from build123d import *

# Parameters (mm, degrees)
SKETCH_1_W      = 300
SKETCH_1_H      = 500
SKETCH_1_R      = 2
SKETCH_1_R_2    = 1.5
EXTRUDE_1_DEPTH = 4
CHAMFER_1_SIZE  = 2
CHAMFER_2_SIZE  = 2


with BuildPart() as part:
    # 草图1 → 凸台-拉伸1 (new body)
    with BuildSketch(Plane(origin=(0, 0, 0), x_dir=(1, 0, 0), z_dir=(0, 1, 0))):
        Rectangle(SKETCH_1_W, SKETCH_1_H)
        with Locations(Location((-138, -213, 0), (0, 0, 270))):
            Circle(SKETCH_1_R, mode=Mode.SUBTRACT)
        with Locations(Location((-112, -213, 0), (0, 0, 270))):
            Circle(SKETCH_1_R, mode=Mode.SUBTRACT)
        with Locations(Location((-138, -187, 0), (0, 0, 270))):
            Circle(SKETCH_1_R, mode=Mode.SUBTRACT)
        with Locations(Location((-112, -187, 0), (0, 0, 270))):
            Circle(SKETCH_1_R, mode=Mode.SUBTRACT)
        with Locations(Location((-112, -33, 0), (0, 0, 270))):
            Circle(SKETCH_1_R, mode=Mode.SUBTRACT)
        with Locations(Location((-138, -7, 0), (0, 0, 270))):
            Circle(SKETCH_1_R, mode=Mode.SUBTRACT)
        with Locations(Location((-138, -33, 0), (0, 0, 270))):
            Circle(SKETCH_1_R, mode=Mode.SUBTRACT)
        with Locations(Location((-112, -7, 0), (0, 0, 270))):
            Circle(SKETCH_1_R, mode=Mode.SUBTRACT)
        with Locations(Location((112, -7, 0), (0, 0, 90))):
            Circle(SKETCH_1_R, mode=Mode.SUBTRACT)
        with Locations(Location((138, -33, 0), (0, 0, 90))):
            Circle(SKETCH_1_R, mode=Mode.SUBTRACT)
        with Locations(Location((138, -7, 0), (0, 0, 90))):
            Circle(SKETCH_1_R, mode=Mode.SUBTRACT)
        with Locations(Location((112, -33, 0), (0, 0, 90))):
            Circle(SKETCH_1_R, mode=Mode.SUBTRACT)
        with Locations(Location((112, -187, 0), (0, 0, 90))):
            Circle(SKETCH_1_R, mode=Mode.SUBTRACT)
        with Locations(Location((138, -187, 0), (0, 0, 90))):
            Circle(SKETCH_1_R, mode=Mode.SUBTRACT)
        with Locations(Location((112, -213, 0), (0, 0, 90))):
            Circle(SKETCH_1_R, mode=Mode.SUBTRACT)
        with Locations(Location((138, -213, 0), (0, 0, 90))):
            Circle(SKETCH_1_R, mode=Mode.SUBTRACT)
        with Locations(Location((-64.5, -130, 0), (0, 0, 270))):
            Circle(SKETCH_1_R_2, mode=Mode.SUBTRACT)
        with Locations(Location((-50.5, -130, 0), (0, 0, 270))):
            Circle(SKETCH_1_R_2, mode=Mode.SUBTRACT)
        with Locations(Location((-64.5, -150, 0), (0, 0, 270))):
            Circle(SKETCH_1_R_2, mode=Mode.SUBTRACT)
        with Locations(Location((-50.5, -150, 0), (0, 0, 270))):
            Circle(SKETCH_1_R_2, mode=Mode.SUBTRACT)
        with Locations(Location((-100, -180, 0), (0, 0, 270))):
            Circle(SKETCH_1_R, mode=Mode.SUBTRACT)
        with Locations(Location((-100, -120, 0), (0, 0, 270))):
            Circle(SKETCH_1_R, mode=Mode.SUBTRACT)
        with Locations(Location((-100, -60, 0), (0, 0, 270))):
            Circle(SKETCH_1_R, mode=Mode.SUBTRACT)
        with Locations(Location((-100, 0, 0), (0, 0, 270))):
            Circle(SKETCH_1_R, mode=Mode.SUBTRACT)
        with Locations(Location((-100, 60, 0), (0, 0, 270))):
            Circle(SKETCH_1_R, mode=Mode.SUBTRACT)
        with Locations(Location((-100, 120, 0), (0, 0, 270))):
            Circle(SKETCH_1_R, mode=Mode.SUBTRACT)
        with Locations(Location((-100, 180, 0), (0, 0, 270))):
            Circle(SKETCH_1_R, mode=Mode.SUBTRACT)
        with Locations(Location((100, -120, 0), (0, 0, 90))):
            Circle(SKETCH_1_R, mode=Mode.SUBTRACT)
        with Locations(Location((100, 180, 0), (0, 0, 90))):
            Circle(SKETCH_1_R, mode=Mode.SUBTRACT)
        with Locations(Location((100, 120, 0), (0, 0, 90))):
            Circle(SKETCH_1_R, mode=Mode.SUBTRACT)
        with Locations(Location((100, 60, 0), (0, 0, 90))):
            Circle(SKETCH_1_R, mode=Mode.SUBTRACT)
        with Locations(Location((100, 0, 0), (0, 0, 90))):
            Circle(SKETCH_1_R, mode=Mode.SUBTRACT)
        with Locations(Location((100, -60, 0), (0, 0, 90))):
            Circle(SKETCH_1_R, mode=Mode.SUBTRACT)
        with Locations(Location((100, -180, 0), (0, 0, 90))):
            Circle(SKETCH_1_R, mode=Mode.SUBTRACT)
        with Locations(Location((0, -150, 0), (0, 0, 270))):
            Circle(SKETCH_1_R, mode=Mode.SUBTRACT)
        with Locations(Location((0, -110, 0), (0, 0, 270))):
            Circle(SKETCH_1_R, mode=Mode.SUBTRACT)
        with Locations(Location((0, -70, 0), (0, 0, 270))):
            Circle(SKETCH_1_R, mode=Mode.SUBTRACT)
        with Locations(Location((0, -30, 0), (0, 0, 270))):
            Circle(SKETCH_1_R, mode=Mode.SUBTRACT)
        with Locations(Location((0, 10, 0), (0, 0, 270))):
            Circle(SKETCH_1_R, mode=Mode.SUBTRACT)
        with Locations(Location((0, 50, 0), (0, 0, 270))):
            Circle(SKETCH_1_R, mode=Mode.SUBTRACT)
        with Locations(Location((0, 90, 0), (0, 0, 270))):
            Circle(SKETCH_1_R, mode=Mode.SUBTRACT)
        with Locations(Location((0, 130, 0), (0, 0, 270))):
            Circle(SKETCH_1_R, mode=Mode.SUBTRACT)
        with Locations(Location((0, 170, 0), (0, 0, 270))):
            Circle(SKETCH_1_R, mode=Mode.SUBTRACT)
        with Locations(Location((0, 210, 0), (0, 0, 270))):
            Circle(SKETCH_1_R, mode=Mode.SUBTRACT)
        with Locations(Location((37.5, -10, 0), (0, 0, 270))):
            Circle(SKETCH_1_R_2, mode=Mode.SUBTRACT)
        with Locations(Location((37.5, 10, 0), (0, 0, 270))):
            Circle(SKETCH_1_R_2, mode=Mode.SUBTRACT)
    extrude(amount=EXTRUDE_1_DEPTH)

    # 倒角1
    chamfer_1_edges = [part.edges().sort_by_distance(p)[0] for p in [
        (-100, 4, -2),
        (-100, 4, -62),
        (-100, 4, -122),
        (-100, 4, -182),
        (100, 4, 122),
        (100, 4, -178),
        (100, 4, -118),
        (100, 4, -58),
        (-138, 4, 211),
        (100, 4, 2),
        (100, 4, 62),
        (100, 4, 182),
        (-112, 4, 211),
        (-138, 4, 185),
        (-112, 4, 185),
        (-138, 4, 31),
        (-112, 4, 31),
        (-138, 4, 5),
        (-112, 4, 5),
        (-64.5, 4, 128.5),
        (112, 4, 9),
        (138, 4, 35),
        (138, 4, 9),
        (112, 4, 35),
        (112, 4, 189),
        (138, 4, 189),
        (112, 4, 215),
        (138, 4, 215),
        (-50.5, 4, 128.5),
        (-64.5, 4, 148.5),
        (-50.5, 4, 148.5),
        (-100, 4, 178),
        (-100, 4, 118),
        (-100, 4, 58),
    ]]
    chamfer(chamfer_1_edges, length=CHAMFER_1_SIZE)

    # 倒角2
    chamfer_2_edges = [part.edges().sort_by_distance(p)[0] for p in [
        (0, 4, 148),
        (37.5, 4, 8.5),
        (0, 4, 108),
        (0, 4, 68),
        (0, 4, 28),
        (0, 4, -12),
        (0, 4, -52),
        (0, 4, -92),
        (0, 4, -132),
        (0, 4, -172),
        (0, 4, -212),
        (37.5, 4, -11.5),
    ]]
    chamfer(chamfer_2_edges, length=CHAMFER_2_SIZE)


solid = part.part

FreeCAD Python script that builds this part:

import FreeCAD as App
import Part
import Sketcher

V = App.Vector


def edges_at(feature, points):
    """Names of the edges that pass closest to the given points."""
    edges = feature.Shape.Edges
    near = lambda p: min(range(len(edges)), key=lambda i: edges[i].distToShape(Part.Vertex(*p))[0])
    return sorted({f"Edge{near(p) + 1}" for p in points})

doc = App.newDocument("Part")
params = doc.addObject("Spreadsheet::Sheet", "Params")
for row, (alias, value) in enumerate([
    ("sketch1_diameter", "4 mm"),
    ("sketch1_diameter2", "3 mm"),
    ("sketch1_width", "300 mm"),
    ("sketch1_height", "500 mm"),
    ("pad1_length", "4 mm"),
    ("chamfer_size", "2 mm"),
    ("chamfer2_size", "2 mm"),
], start=1):
    params.set(f"A{row}", alias)
    params.set(f"B{row}", "=" + value)
    params.setAlias(f"B{row}", alias)

body = doc.addObject("PartDesign::Body", "Body")

# Sketch on XZ plane
sketch1 = body.newObject("Sketcher::SketchObject", "Sketch")
sketch1.AttachmentSupport = (doc.getObject("XZ_Plane"), [""])
sketch1.MapMode = "FlatFace"
sketch1.addGeometry([
    Part.LineSegment(V(-150, -250, 0), V(-150, 250, 0)),  # 0
    Part.LineSegment(V(-150, 250, 0), V(150, 250, 0)),  # 1
    Part.LineSegment(V(150, 250, 0), V(150, -250, 0)),  # 2
    Part.LineSegment(V(150, -250, 0), V(-150, -250, 0)),  # 3
    Part.Circle(V(-138, 213, 0), V(0, 0, 1), 2),  # 4
    Part.Circle(V(-112, 213, 0), V(0, 0, 1), 2),  # 5
    Part.Circle(V(-138, 187, 0), V(0, 0, 1), 2),  # 6
    Part.Circle(V(-112, 187, 0), V(0, 0, 1), 2),  # 7
    Part.Circle(V(-100, 180, 0), V(0, 0, 1), 2),  # 8
    Part.Circle(V(-100, 120, 0), V(0, 0, 1), 2),  # 9
    Part.Circle(V(-64.5, 150, 0), V(0, 0, 1), 1.5),  # 10
    Part.Circle(V(-50.5, 150, 0), V(0, 0, 1), 1.5),  # 11
    Part.Circle(V(-64.5, 130, 0), V(0, 0, 1), 1.5),  # 12
    Part.Circle(V(-50.5, 130, 0), V(0, 0, 1), 1.5),  # 13
    Part.Circle(V(-100, 60, 0), V(0, 0, 1), 2),  # 14
    Part.Circle(V(-138, 33, 0), V(0, 0, 1), 2),  # 15
    Part.Circle(V(-112, 33, 0), V(0, 0, 1), 2),  # 16
    Part.Circle(V(-138, 7, 0), V(0, 0, 1), 2),  # 17
    Part.Circle(V(-112, 7, 0), V(0, 0, 1), 2),  # 18
    Part.Circle(V(0, 150, 0), V(0, 0, 1), 2),  # 19
    Part.Circle(V(0, 110, 0), V(0, 0, 1), 2),  # 20
    Part.Circle(V(100, 180, 0), V(0, 0, 1), 2),  # 21
    Part.Circle(V(112, 213, 0), V(0, 0, 1), 2),  # 22
    Part.Circle(V(138, 213, 0), V(0, 0, 1), 2),  # 23
    Part.Circle(V(112, 187, 0), V(0, 0, 1), 2),  # 24
    Part.Circle(V(138, 187, 0), V(0, 0, 1), 2),  # 25
    Part.Circle(V(100, 120, 0), V(0, 0, 1), 2),  # 26
    Part.Circle(V(0, 70, 0), V(0, 0, 1), 2),  # 27
    Part.Circle(V(0, 30, 0), V(0, 0, 1), 2),  # 28
    Part.Circle(V(37.5, 10, 0), V(0, 0, 1), 1.5),  # 29
    Part.Circle(V(100, 60, 0), V(0, 0, 1), 2),  # 30
    Part.Circle(V(112, 33, 0), V(0, 0, 1), 2),  # 31
    Part.Circle(V(138, 33, 0), V(0, 0, 1), 2),  # 32
    Part.Circle(V(112, 7, 0), V(0, 0, 1), 2),  # 33
    Part.Circle(V(138, 7, 0), V(0, 0, 1), 2),  # 34
    Part.Circle(V(-100, 0, 0), V(0, 0, 1), 2),  # 35
    Part.Circle(V(-100, -60, 0), V(0, 0, 1), 2),  # 36
    Part.Circle(V(-100, -120, 0), V(0, 0, 1), 2),  # 37
    Part.Circle(V(-100, -180, 0), V(0, 0, 1), 2),  # 38
    Part.Circle(V(0, -10, 0), V(0, 0, 1), 2),  # 39
    Part.Circle(V(0, -50, 0), V(0, 0, 1), 2),  # 40
    Part.Circle(V(37.5, -10, 0), V(0, 0, 1), 1.5),  # 41
    Part.Circle(V(0, -90, 0), V(0, 0, 1), 2),  # 42
    Part.Circle(V(100, 0, 0), V(0, 0, 1), 2),  # 43
    Part.Circle(V(100, -60, 0), V(0, 0, 1), 2),  # 44
    Part.Circle(V(0, -130, 0), V(0, 0, 1), 2),  # 45
    Part.Circle(V(0, -170, 0), V(0, 0, 1), 2),  # 46
    Part.Circle(V(0, -210, 0), V(0, 0, 1), 2),  # 47
    Part.Circle(V(100, -120, 0), V(0, 0, 1), 2),  # 48
    Part.Circle(V(100, -180, 0), V(0, 0, 1), 2),  # 49
], False)
sketch1.addConstraint([
    Sketcher.Constraint("Coincident", 0, 2, 1, 1),
    Sketcher.Constraint("Coincident", 1, 2, 2, 1),
    Sketcher.Constraint("Coincident", 2, 2, 3, 1),
    Sketcher.Constraint("Coincident", 3, 2, 0, 1),
    Sketcher.Constraint("Vertical", 0),
    Sketcher.Constraint("Horizontal", 1),
    Sketcher.Constraint("Vertical", 2),
    Sketcher.Constraint("Horizontal", 3),
    Sketcher.Constraint("Equal", 4, 5),
    Sketcher.Constraint("Equal", 5, 6),
    Sketcher.Constraint("Equal", 6, 7),
    Sketcher.Constraint("Equal", 7, 8),
    Sketcher.Constraint("Equal", 8, 9),
    Sketcher.Constraint("Equal", 10, 11),
    Sketcher.Constraint("Equal", 11, 12),
    Sketcher.Constraint("Equal", 12, 13),
    Sketcher.Constraint("Equal", 9, 14),
    Sketcher.Constraint("Equal", 14, 15),
    Sketcher.Constraint("Equal", 15, 16),
    Sketcher.Constraint("Equal", 16, 17),
    Sketcher.Constraint("Equal", 17, 18),
    Sketcher.Constraint("Equal", 18, 19),
    Sketcher.Constraint("Equal", 19, 20),
    Sketcher.Constraint("Equal", 20, 21),
    Sketcher.Constraint("Equal", 21, 22),
    Sketcher.Constraint("Equal", 22, 23),
    Sketcher.Constraint("Equal", 23, 24),
    Sketcher.Constraint("Equal", 24, 25),
    Sketcher.Constraint("Equal", 25, 26),
    Sketcher.Constraint("Equal", 26, 27),
    Sketcher.Constraint("Equal", 27, 28),
    Sketcher.Constraint("Equal", 13, 29),
    Sketcher.Constraint("Equal", 28, 30),
    Sketcher.Constraint("Equal", 30, 31),
    Sketcher.Constraint("Equal", 31, 32),
    Sketcher.Constraint("Equal", 32, 33),
    Sketcher.Constraint("Equal", 33, 34),
    Sketcher.Constraint("Equal", 34, 35),
    Sketcher.Constraint("Equal", 35, 36),
    Sketcher.Constraint("Equal", 36, 37),
    Sketcher.Constraint("Equal", 37, 38),
    Sketcher.Constraint("Equal", 38, 39),
    Sketcher.Constraint("Equal", 39, 40),
    Sketcher.Constraint("Equal", 29, 41),
    Sketcher.Constraint("Equal", 40, 42),
    Sketcher.Constraint("Equal", 42, 43),
    Sketcher.Constraint("Equal", 43, 44),
    Sketcher.Constraint("Equal", 44, 45),
    Sketcher.Constraint("Equal", 45, 46),
    Sketcher.Constraint("Equal", 46, 47),
    Sketcher.Constraint("Equal", 47, 48),
    Sketcher.Constraint("Equal", 48, 49),
    Sketcher.Constraint("Symmetric", 30, 3, 36, 3, -1, 1),
    Sketcher.Constraint("Symmetric", 26, 3, 37, 3, -1, 1),
    Sketcher.Constraint("Symmetric", 21, 3, 38, 3, -1, 1),
    Sketcher.Constraint("Symmetric", 35, 3, 43, 3, -1, 1),
    Sketcher.Constraint("Symmetric", 14, 3, 44, 3, -1, 1),
    Sketcher.Constraint("Symmetric", 9, 3, 48, 3, -1, 1),
    Sketcher.Constraint("Symmetric", 8, 3, 49, 3, -1, 1),
    Sketcher.Constraint("Symmetric", 0, 2, 2, 2, -1, 1),
    Sketcher.Constraint("Symmetric", 8, 3, 21, 3, -2),
    Sketcher.Constraint("Symmetric", 5, 3, 22, 3, -2),
    Sketcher.Constraint("Symmetric", 4, 3, 23, 3, -2),
    Sketcher.Constraint("Symmetric", 7, 3, 24, 3, -2),
    Sketcher.Constraint("Symmetric", 6, 3, 25, 3, -2),
    Sketcher.Constraint("Symmetric", 9, 3, 26, 3, -2),
    Sketcher.Constraint("Symmetric", 14, 3, 30, 3, -2),
    Sketcher.Constraint("Symmetric", 16, 3, 31, 3, -2),
    Sketcher.Constraint("Symmetric", 15, 3, 32, 3, -2),
    Sketcher.Constraint("Symmetric", 18, 3, 33, 3, -2),
    Sketcher.Constraint("Symmetric", 17, 3, 34, 3, -2),
    Sketcher.Constraint("Symmetric", 29, 3, 41, 3, -1),
    Sketcher.Constraint("PointOnObject", 19, 3, -2),
    Sketcher.Constraint("PointOnObject", 20, 3, -2),
    Sketcher.Constraint("PointOnObject", 27, 3, -2),
    Sketcher.Constraint("PointOnObject", 28, 3, -2),
    Sketcher.Constraint("PointOnObject", 35, 3, -1),
    Sketcher.Constraint("PointOnObject", 39, 3, -2),
    Sketcher.Constraint("PointOnObject", 40, 3, -2),
    Sketcher.Constraint("PointOnObject", 42, 3, -2),
    Sketcher.Constraint("PointOnObject", 45, 3, -2),
    Sketcher.Constraint("PointOnObject", 46, 3, -2),
    Sketcher.Constraint("PointOnObject", 47, 3, -2),
    Sketcher.Constraint("Horizontal", 4, 3, 5, 3),
    Sketcher.Constraint("Horizontal", 6, 3, 7, 3),
    Sketcher.Constraint("Horizontal", 10, 3, 11, 3),
    Sketcher.Constraint("Horizontal", 12, 3, 13, 3),
    Sketcher.Constraint("Horizontal", 15, 3, 16, 3),
    Sketcher.Constraint("Horizontal", 17, 3, 18, 3),
    Sketcher.Constraint("Horizontal", 11, 3, 19, 3),
    Sketcher.Constraint("Horizontal", 39, 3, 41, 3),
    Sketcher.Constraint("Vertical", 4, 3, 6, 3),
    Sketcher.Constraint("Vertical", 5, 3, 7, 3),
    Sketcher.Constraint("Vertical", 8, 3, 9, 3),
    Sketcher.Constraint("Vertical", 10, 3, 12, 3),
    Sketcher.Constraint("Vertical", 11, 3, 13, 3),
    Sketcher.Constraint("Vertical", 9, 3, 14, 3),
    Sketcher.Constraint("Vertical", 6, 3, 15, 3),
    Sketcher.Constraint("Vertical", 7, 3, 16, 3),
    Sketcher.Constraint("Vertical", 15, 3, 17, 3),
    Sketcher.Constraint("Vertical", 16, 3, 18, 3),
    Sketcher.Constraint("Vertical", 14, 3, 35, 3),
    Sketcher.Constraint("Diameter", 4, 4.0),
    Sketcher.Constraint("Diameter", 10, 3.0),
    Sketcher.Constraint("DistanceX", 1, 1, 1, 2, 300.0),
    Sketcher.Constraint("DistanceY", 0, 1, 0, 2, 500.0),
    Sketcher.Constraint("DistanceX", 4, 3, -1, 1, 138.0),
    Sketcher.Constraint("DistanceY", -1, 1, 4, 3, 213.0),
    Sketcher.Constraint("DistanceX", 5, 3, -1, 1, 112.0),
    Sketcher.Constraint("DistanceY", -1, 1, 6, 3, 187.0),
    Sketcher.Constraint("DistanceX", 8, 3, -1, 1, 100.0),
    Sketcher.Constraint("DistanceY", -1, 1, 8, 3, 180.0),
    Sketcher.Constraint("DistanceY", -1, 1, 9, 3, 120.0),
    Sketcher.Constraint("DistanceY", -1, 1, 10, 3, 150.0),
    Sketcher.Constraint("DistanceY", -1, 1, 12, 3, 130.0),
    Sketcher.Constraint("DistanceY", -1, 1, 14, 3, 60.0),
    Sketcher.Constraint("DistanceY", -1, 1, 15, 3, 33.0),
    Sketcher.Constraint("DistanceY", -1, 1, 17, 3, 7.0),
    Sketcher.Constraint("DistanceY", -1, 1, 20, 3, 110.0),
    Sketcher.Constraint("DistanceY", -1, 1, 27, 3, 70.0),
    Sketcher.Constraint("DistanceY", -1, 1, 28, 3, 30.0),
    Sketcher.Constraint("DistanceY", -1, 1, 29, 3, 10.0),
    Sketcher.Constraint("DistanceY", 40, 3, -1, 1, 50.0),
    Sketcher.Constraint("DistanceY", 42, 3, -1, 1, 90.0),
    Sketcher.Constraint("DistanceY", 45, 3, -1, 1, 130.0),
    Sketcher.Constraint("DistanceY", 46, 3, -1, 1, 170.0),
    Sketcher.Constraint("DistanceY", 47, 3, -1, 1, 210.0),
    Sketcher.Constraint("DistanceX", 10, 3, 11, 3, 14.0),
    Sketcher.Constraint("DistanceX", 10, 3, -1, 1, 64.5),
    Sketcher.Constraint("DistanceX", -1, 1, 29, 3, 37.5),
])
sketch1.setExpression("Constraints[102]", "Params.sketch1_diameter")
sketch1.setExpression("Constraints[103]", "Params.sketch1_diameter2")
sketch1.setExpression("Constraints[104]", "Params.sketch1_width")
sketch1.setExpression("Constraints[105]", "Params.sketch1_height")
pad1 = body.newObject("PartDesign::Pad", "Pad")
pad1.Profile = sketch1
pad1.setExpression("Length", "Params.pad1_length")
pad1.Reversed = True
doc.recompute()

chamfer = body.newObject("PartDesign::Chamfer", "Chamfer")
chamfer.Base = (pad1, edges_at(pad1, [
    (-100, 4, -2),
    (-100, 4, -62),
    (-100, 4, -122),
    (-100, 4, -182),
    (100, 4, 122),
    (100, 4, -178),
    (100, 4, -118),
    (100, 4, -58),
    (-138, 4, 211),
    (100, 4, 2),
    (100, 4, 62),
    (100, 4, 182),
    (-112, 4, 211),
    (-138, 4, 185),
    (-112, 4, 185),
    (-138, 4, 31),
    (-112, 4, 31),
    (-138, 4, 5),
    (-112, 4, 5),
    (-64.5, 4, 128.5),
    (112, 4, 9),
    (138, 4, 35),
    (138, 4, 9),
    (112, 4, 35),
    (112, 4, 189),
    (138, 4, 189),
    (112, 4, 215),
    (138, 4, 215),
    (-50.5, 4, 128.5),
    (-64.5, 4, 148.5),
    (-50.5, 4, 148.5),
    (-100, 4, 178),
    (-100, 4, 118),
    (-100, 4, 58),
]))
chamfer.setExpression("Size", "Params.chamfer_size")
doc.recompute()

chamfer2 = body.newObject("PartDesign::Chamfer", "Chamfer001")
chamfer2.Base = (chamfer, edges_at(chamfer, [
    (0, 4, 148),
    (37.5, 4, 8.5),
    (0, 4, 108),
    (0, 4, 68),
    (0, 4, 28),
    (0, 4, -12),
    (0, 4, -52),
    (0, 4, -92),
    (0, 4, -132),
    (0, 4, -172),
    (0, 4, -212),
    (37.5, 4, -11.5),
]))
chamfer2.setExpression("Size", "Params.chamfer2_size")

doc.recompute()
